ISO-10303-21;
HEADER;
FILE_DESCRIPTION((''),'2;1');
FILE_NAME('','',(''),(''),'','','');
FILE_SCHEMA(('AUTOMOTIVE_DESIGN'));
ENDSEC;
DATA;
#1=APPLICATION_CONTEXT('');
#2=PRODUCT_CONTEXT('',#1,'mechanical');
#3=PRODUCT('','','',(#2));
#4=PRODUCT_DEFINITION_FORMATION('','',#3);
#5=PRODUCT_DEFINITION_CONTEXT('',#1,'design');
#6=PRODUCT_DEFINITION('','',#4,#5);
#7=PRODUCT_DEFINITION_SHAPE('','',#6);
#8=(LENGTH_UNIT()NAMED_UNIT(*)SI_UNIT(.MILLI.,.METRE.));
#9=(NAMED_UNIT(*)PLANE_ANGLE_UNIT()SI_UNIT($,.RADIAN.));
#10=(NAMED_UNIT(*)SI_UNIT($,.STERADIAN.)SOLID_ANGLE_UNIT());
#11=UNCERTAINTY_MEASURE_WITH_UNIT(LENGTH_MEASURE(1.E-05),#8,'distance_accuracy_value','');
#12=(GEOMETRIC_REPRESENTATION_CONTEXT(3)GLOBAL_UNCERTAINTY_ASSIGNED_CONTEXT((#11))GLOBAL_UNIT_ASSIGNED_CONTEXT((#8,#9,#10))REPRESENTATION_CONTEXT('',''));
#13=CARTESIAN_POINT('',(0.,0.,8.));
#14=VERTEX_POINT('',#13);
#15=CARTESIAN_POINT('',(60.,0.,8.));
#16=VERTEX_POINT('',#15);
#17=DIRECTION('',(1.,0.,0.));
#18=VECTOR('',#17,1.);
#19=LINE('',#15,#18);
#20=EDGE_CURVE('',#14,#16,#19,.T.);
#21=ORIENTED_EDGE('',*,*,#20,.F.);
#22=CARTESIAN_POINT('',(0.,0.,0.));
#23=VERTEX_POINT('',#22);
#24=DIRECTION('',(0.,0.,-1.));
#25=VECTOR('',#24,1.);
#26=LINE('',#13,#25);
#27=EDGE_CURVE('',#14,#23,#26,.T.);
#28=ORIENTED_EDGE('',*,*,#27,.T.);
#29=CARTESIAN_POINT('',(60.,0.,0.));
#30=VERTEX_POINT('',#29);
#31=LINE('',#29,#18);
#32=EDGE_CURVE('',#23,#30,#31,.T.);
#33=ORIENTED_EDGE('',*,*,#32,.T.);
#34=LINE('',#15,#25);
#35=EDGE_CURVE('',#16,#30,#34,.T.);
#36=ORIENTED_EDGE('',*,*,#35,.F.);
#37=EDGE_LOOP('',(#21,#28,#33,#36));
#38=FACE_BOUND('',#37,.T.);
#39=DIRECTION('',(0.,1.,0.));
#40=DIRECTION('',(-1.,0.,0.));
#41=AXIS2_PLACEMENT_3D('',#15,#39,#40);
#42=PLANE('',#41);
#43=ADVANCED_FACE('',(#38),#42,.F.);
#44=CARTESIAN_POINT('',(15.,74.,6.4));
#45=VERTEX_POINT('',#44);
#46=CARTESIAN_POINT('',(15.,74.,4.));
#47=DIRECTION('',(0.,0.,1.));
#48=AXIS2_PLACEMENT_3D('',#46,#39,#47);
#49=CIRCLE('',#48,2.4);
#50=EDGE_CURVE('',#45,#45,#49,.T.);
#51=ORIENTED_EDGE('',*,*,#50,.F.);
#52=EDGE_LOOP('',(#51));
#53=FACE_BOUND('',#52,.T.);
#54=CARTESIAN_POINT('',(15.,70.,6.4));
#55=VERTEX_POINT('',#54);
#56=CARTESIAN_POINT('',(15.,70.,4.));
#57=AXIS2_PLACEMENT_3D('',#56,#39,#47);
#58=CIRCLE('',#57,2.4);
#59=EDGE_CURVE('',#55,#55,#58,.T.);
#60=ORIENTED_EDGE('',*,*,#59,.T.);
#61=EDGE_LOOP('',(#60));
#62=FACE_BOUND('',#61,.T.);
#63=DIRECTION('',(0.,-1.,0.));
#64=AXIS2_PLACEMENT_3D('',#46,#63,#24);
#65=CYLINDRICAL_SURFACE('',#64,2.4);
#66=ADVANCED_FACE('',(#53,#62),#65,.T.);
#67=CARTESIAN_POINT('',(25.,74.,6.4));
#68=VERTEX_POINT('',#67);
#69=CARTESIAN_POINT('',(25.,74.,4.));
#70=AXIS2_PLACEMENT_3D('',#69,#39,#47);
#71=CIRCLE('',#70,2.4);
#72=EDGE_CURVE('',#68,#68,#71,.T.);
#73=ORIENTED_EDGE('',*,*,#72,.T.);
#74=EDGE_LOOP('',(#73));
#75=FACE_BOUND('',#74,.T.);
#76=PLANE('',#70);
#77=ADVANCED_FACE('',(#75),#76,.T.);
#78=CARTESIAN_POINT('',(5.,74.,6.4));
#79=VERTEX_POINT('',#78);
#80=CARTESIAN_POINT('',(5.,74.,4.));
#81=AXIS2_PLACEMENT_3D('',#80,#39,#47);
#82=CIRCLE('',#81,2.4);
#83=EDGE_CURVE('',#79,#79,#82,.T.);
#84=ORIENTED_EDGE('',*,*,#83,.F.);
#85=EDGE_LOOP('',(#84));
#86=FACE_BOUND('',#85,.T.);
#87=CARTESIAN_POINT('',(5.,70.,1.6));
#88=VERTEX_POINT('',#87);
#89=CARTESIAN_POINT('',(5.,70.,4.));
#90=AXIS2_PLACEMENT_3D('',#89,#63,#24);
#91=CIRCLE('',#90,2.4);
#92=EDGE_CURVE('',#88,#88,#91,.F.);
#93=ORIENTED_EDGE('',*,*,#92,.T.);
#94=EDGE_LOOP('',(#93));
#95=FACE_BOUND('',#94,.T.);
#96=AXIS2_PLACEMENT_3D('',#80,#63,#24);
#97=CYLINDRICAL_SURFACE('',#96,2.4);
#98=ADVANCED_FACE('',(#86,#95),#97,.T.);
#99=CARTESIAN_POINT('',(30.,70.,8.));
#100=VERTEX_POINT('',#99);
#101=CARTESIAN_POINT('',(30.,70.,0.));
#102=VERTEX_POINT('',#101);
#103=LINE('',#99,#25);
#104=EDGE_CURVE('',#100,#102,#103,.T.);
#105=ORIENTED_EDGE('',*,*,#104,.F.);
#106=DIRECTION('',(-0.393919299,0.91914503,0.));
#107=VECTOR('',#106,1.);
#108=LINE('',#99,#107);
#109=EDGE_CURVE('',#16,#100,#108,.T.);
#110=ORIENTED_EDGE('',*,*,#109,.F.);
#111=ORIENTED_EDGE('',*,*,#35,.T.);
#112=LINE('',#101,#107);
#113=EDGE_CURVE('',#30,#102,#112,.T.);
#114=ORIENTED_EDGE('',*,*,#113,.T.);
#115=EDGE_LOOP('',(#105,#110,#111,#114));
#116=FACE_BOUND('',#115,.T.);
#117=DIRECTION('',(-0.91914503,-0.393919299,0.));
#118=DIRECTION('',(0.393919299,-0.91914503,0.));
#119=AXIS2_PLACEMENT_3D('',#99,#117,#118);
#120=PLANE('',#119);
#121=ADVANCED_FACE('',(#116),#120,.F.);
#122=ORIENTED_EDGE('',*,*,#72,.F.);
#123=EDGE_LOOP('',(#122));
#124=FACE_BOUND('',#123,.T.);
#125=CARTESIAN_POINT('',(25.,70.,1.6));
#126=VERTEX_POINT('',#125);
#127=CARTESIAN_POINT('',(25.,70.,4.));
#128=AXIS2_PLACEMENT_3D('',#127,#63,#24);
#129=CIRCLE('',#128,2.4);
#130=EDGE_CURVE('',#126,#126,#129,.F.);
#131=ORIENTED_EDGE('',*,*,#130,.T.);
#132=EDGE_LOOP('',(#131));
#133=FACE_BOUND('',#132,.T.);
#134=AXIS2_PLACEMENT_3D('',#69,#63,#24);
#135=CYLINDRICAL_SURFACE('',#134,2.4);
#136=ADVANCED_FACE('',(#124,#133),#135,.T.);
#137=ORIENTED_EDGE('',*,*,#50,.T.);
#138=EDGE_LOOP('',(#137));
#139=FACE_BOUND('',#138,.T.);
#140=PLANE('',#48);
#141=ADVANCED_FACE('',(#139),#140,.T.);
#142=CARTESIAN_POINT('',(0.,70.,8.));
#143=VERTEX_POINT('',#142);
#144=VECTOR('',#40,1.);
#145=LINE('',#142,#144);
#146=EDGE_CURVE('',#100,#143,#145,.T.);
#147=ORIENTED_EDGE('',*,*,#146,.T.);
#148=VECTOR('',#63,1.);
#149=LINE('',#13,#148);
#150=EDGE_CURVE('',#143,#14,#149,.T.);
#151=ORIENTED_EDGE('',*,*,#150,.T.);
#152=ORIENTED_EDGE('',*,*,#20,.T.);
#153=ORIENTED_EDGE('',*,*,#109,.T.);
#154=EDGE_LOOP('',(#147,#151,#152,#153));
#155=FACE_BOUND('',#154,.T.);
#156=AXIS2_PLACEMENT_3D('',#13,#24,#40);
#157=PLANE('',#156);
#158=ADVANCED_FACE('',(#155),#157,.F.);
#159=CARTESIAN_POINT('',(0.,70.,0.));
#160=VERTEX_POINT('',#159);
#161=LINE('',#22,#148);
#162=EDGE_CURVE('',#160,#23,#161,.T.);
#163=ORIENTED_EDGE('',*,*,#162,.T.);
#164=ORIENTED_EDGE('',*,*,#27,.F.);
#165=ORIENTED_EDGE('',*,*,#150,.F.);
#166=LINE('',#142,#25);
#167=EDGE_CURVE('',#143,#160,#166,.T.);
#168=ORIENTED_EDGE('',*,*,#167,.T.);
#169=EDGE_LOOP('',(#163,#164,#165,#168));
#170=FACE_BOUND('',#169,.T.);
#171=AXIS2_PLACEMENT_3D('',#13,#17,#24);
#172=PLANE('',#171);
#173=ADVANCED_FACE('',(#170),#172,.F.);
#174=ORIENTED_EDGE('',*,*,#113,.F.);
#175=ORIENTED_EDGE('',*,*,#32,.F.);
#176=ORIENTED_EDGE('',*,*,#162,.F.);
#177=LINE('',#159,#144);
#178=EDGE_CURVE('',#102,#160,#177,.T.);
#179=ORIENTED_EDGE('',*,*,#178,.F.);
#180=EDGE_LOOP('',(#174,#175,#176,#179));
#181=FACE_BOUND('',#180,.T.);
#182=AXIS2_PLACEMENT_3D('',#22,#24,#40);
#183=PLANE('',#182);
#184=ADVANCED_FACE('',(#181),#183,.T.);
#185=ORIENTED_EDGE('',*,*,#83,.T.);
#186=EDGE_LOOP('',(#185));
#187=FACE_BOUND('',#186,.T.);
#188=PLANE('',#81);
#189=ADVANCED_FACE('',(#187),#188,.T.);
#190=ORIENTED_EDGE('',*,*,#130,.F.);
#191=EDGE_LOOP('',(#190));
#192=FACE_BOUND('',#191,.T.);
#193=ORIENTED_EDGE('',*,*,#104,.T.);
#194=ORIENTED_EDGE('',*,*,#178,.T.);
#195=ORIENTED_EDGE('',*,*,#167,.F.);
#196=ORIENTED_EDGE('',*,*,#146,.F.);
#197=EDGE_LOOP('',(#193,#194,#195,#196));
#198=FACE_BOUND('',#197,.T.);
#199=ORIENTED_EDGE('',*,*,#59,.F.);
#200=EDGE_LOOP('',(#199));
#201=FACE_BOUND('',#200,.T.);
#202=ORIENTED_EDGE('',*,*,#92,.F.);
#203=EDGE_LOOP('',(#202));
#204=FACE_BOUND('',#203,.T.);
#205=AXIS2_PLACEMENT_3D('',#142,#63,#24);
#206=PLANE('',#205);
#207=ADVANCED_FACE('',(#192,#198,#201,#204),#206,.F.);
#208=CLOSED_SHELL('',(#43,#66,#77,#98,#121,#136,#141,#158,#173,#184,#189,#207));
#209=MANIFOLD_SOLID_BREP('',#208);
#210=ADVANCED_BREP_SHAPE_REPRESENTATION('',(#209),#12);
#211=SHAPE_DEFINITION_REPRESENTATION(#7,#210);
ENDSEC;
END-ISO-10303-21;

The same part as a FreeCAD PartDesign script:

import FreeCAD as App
import Part
import Sketcher

V = App.Vector

doc = App.newDocument("Part")
body = doc.addObject("PartDesign::Body", "Body")

# Sketch on XY plane
sketch1 = body.newObject("Sketcher::SketchObject", "Sketch")
sketch1.AttachmentSupport = (doc.getObject("XY_Plane"), [""])
sketch1.MapMode = "FlatFace"
sketch1.addGeometry(Part.LineSegment(V(0, 70, 0), V(0, 0, 0)), False)
sketch1.addGeometry(Part.LineSegment(V(0, 0, 0), V(60, 0, 0)), False)
sketch1.addGeometry(Part.LineSegment(V(60, 0, 0), V(30, 70, 0)), False)
sketch1.addGeometry(Part.LineSegment(V(30, 70, 0), V(0, 70, 0)), False)
sketch1.addConstraint(Sketcher.Constraint("Coincident", 0, 2, 1, 1))
sketch1.addConstraint(Sketcher.Constraint("Coincident", 1, 2, 2, 1))
sketch1.addConstraint(Sketcher.Constraint("Coincident", 2, 2, 3, 1))
sketch1.addConstraint(Sketcher.Constraint("Coincident", 3, 2, 0, 1))
sketch1.addConstraint(Sketcher.Constraint("Vertical", 0))
sketch1.addConstraint(Sketcher.Constraint("Horizontal", 1))
sketch1.addConstraint(Sketcher.Constraint("Horizontal", 3))
sketch1.addConstraint(Sketcher.Constraint("Coincident", 0, 2, -1, 1))
sketch1.addConstraint(Sketcher.Constraint("DistanceX", 1, 1, 1, 2, 60.0))
sketch1.addConstraint(Sketcher.Constraint("DistanceX", 3, 2, 3, 1, 30.0))
sketch1.addConstraint(Sketcher.Constraint("DistanceY", 0, 2, 0, 1, 70.0))
pad1 = body.newObject("PartDesign::Pad", "Pad")
pad1.Profile = sketch1
pad1.Length = 8

# Sketch on XZ plane
sketch2 = body.newObject("Sketcher::SketchObject", "Sketch001")
sketch2.AttachmentSupport = (doc.getObject("XZ_Plane"), [""])
sketch2.MapMode = "FlatFace"
sketch2.AttachmentOffset = App.Placement(V(0, 0, -70), App.Rotation())
sketch2.addGeometry(Part.Circle(V(25, 4, 0), V(0, 0, 1), 2.4), False)
sketch2.addGeometry(Part.Circle(V(15, 4, 0), V(0, 0, 1), 2.4), False)
sketch2.addGeometry(Part.Circle(V(5, 4, 0), V(0, 0, 1), 2.4), False)
sketch2.addConstraint(Sketcher.Constraint("Equal", 0, 1))
sketch2.addConstraint(Sketcher.Constraint("Equal", 1, 2))
sketch2.addConstraint(Sketcher.Constraint("Horizontal", 0, 3, 1, 3))
sketch2.addConstraint(Sketcher.Constraint("Horizontal", 1, 3, 2, 3))
sketch2.addConstraint(Sketcher.Constraint("Diameter", 0, 4.8))
sketch2.addConstraint(Sketcher.Constraint("DistanceX", -1, 1, 0, 3, 25.0))
sketch2.addConstraint(Sketcher.Constraint("DistanceY", -1, 1, 0, 3, 4.0))
sketch2.addConstraint(Sketcher.Constraint("DistanceX", -1, 1, 1, 3, 15.0))
sketch2.addConstraint(Sketcher.Constraint("DistanceX", -1, 1, 2, 3, 5.0))
pad2 = body.newObject("PartDesign::Pad", "Pad001")
pad2.Profile = sketch2
pad2.Length = 4
pad2.Reversed = True

doc.recompute()
